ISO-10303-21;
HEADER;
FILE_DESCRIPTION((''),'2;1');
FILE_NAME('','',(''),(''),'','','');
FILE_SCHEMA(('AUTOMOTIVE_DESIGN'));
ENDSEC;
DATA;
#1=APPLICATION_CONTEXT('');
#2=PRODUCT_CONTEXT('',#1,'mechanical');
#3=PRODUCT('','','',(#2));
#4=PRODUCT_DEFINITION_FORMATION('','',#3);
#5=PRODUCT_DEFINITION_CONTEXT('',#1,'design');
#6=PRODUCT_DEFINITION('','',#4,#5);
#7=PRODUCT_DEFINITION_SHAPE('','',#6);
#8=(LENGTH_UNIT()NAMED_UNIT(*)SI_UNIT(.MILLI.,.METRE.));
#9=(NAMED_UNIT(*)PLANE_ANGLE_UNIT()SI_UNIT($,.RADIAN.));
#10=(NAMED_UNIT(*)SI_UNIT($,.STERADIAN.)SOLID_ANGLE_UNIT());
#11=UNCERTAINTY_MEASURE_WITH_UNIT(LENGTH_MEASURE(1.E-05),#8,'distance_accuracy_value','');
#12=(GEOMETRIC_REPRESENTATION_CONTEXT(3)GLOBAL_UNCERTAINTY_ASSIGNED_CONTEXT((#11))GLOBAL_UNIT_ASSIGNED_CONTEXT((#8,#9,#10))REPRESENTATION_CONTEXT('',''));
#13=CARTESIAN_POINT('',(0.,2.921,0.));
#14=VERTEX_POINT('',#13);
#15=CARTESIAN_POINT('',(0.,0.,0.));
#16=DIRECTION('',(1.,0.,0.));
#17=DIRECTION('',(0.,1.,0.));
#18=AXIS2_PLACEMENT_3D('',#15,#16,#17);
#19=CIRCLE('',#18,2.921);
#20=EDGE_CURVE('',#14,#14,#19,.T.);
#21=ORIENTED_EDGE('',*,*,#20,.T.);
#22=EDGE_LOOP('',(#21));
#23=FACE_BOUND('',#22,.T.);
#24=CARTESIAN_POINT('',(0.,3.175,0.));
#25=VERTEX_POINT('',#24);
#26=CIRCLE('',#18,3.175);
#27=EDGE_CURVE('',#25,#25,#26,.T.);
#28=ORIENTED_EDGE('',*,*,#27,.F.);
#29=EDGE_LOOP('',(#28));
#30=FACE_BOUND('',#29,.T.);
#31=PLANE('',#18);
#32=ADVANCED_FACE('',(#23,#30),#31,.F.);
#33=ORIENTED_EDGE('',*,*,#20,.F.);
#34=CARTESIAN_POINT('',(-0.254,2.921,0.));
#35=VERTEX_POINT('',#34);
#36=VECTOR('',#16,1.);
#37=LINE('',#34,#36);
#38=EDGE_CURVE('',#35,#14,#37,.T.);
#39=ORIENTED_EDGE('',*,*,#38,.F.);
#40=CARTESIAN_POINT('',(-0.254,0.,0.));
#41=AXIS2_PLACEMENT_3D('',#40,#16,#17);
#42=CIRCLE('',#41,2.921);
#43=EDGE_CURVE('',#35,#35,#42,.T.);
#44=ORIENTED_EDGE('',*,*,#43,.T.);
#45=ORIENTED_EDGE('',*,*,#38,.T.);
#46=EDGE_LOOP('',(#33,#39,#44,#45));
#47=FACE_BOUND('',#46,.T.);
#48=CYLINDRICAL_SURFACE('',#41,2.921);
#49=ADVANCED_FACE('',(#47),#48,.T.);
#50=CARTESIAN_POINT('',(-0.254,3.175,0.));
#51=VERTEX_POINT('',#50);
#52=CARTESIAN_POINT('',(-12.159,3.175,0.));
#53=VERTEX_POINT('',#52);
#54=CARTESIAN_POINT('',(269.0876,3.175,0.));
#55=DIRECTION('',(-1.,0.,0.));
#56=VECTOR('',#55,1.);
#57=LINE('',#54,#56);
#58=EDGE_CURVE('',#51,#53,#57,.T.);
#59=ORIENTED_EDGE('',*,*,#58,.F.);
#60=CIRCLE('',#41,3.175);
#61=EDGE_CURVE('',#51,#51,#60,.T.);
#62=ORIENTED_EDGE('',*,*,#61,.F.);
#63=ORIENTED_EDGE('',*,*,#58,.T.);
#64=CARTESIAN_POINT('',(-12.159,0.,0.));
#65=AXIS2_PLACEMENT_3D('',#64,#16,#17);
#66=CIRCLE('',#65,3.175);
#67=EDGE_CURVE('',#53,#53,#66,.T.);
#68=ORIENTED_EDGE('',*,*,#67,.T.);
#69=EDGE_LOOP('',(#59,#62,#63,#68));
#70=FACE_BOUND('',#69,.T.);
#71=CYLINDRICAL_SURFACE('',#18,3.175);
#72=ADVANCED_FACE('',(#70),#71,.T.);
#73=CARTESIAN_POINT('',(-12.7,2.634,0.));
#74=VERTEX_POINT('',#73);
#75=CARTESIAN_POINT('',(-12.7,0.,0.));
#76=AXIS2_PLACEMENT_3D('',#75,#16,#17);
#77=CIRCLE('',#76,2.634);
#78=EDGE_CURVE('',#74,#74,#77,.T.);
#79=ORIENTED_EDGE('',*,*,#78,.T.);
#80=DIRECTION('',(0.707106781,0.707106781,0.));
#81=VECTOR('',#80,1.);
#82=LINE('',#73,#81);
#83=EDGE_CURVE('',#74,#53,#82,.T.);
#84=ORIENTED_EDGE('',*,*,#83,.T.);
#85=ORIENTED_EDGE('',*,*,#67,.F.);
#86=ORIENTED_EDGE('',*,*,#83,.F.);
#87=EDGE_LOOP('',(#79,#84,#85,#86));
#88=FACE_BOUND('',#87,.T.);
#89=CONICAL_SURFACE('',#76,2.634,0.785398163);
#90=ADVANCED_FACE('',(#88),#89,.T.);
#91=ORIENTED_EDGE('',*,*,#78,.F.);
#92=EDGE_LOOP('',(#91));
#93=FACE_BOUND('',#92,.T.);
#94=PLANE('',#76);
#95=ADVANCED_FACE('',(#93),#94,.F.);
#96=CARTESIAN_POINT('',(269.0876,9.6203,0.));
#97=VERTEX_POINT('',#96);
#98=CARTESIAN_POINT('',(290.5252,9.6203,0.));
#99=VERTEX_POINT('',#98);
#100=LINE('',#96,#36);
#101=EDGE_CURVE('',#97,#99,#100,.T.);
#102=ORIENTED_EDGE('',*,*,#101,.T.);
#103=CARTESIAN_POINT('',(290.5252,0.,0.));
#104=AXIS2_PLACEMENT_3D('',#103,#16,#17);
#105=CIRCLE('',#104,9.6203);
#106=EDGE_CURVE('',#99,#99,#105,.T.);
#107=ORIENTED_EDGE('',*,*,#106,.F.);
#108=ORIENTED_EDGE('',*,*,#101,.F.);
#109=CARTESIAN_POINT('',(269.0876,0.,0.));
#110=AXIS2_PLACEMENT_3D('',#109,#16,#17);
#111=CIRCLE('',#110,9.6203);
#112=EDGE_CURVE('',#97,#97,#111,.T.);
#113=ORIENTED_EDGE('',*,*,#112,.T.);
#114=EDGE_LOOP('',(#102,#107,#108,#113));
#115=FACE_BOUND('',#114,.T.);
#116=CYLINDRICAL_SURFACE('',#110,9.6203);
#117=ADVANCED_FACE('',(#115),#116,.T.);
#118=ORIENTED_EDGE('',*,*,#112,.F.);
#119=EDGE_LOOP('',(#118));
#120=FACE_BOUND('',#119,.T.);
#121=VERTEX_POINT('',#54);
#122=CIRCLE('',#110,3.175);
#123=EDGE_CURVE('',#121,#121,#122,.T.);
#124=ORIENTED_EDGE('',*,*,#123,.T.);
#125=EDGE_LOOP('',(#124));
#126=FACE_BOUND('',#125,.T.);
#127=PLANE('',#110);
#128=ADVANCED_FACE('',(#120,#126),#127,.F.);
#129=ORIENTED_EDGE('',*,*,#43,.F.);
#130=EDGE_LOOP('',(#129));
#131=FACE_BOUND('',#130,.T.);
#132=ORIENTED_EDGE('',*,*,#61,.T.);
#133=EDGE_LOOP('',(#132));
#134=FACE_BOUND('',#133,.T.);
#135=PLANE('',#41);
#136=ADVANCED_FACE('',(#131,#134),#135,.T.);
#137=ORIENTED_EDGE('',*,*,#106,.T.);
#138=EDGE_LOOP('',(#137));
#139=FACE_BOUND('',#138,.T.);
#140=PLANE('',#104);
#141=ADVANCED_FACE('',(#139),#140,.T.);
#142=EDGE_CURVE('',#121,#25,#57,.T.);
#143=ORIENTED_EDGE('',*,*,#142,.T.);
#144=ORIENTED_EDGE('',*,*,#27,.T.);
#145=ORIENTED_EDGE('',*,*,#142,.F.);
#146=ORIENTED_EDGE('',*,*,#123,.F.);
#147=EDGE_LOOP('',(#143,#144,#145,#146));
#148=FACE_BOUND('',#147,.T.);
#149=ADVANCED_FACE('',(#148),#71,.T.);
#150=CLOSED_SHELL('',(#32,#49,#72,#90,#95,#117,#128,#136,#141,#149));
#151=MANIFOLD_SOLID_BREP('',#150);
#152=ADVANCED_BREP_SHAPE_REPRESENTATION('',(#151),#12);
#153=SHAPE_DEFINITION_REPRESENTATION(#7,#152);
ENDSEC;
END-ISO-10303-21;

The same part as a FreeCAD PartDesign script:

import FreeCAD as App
import Part
import Sketcher
from FreeCAD import Vector
Q = App.Units.Quantity

doc = App.newDocument("Part")
params = doc.addObject("Spreadsheet::Sheet", "Params")
for row, (alias, value) in enumerate([
    ("sketch1_width", "11.438 in"),
    ("sketch1_width2", "0.844 in"),
    ("sketch1_height", "0.125 in"),
    ("revolution_angle", "360 deg"),
    ("sketch2_width", "0.5 in"),
    ("sketch2_height", "0.125 in"),
    ("revolution2_angle", "360 deg"),
    ("sketch3_width", "0.01 in"),
    ("sketch3_height", "0.02 in"),
    ("groove_angle", "360 deg"),
], start=1):
    params.set(f"A{row}", alias)
    params.set(f"B{row}", "=" + value)
    params.setAlias(f"B{row}", alias)

body = doc.addObject("PartDesign::Body", "Body")

# Sketch on XY plane
sketch1 = body.newObject("Sketcher::SketchObject", "Sketch")
sketch1.AttachmentSupport = (doc.getObject("XY_Plane"), [""])
sketch1.MapMode = "FlatFace"
sketch1.addGeometry([
    Part.LineSegment(Vector(0, 0, 0), Vector(290.5252, 0, 0)),  # 0
    Part.LineSegment(Vector(290.5252, 0, 0), Vector(290.5252, 9.6203, 0)),  # 1
    Part.LineSegment(Vector(290.5252, 9.6203, 0), Vector(269.0876, 9.6203, 0)),  # 2
    Part.LineSegment(Vector(269.0876, 9.6203, 0), Vector(269.0876, 3.175, 0)),  # 3
    Part.LineSegment(Vector(269.0876, 3.175, 0), Vector(0, 3.175, 0)),  # 4
    Part.LineSegment(Vector(0, 3.175, 0), Vector(0, 0, 0)),  # 5
], False)
sketch1.addConstraint([
    Sketcher.Constraint("Coincident", 0, 2, 1, 1),
    Sketcher.Constraint("Coincident", 1, 2, 2, 1),
    Sketcher.Constraint("Coincident", 2, 2, 3, 1),
    Sketcher.Constraint("Coincident", 3, 2, 4, 1),
    Sketcher.Constraint("Coincident", 4, 2, 5, 1),
    Sketcher.Constraint("Coincident", 5, 2, 0, 1),
    Sketcher.Constraint("Horizontal", 0),
    Sketcher.Constraint("Vertical", 1),
    Sketcher.Constraint("Horizontal", 2),
    Sketcher.Constraint("Vertical", 3),
    Sketcher.Constraint("Horizontal", 4),
    Sketcher.Constraint("Vertical", 5),
    Sketcher.Constraint("Coincident", 5, 2, -1, 1),
    Sketcher.Constraint("DistanceX", 0, 1, 0, 2, Q("11.438 in")),
    Sketcher.Constraint("DistanceX", 2, 2, 2, 1, Q("0.844 in")),
    Sketcher.Constraint("DistanceY", 5, 2, 5, 1, Q("0.125 in")),
    Sketcher.Constraint("DistanceY", 1, 1, 1, 2, 9.6203),
])
sketch1.setExpression("Constraints[13]", "Params.sketch1_width")
sketch1.setExpression("Constraints[14]", "Params.sketch1_width2")
sketch1.setExpression("Constraints[15]", "Params.sketch1_height")
revolution = body.newObject("PartDesign::Revolution", "Revolution")
revolution.Profile = sketch1
revolution.ReferenceAxis = (sketch1, ["H_Axis"])
revolution.setExpression("Angle", "Params.revolution_angle")

# Sketch on XY plane
sketch2 = body.newObject("Sketcher::SketchObject", "Sketch001")
sketch2.AttachmentSupport = (doc.getObject("XY_Plane"), [""])
sketch2.MapMode = "FlatFace"
sketch2.addGeometry([
    Part.LineSegment(Vector(-12.7, 0, 0), Vector(0, 0, 0)),  # 0
    Part.LineSegment(Vector(0, 0, 0), Vector(0, 3.175, 0)),  # 1
    Part.LineSegment(Vector(0, 3.175, 0), Vector(-12.159, 3.175, 0)),  # 2
    Part.LineSegment(Vector(-12.159, 3.175, 0), Vector(-12.7, 2.634, 0)),  # 3
    Part.LineSegment(Vector(-12.7, 2.634, 0), Vector(-12.7, 0, 0)),  # 4
], False)
sketch2.addConstraint([
    Sketcher.Constraint("Coincident", 0, 2, 1, 1),
    Sketcher.Constraint("Coincident", 1, 2, 2, 1),
    Sketcher.Constraint("Coincident", 2, 2, 3, 1),
    Sketcher.Constraint("Coincident", 3, 2, 4, 1),
    Sketcher.Constraint("Coincident", 4, 2, 0, 1),
    Sketcher.Constraint("Horizontal", 0),
    Sketcher.Constraint("Vertical", 1),
    Sketcher.Constraint("Horizontal", 2),
    Sketcher.Constraint("Vertical", 4),
    Sketcher.Constraint("Coincident", 0, 2, -1, 1),
    Sketcher.Constraint("DistanceX", 0, 1, 0, 2, Q("0.5 in")),
    Sketcher.Constraint("Angle", 3, Q("-135 deg")),
    Sketcher.Constraint("DistanceY", 1, 1, 1, 2, Q("0.125 in")),
    Sketcher.Constraint("DistanceX", 2, 2, 2, 1, Q("0.4787 in")),
])
sketch2.setExpression("Constraints[10]", "Params.sketch2_width")
sketch2.setExpression("Constraints[12]", "Params.sketch2_height")
revolution2 = body.newObject("PartDesign::Revolution", "Revolution001")
revolution2.Profile = sketch2
revolution2.ReferenceAxis = (sketch2, ["H_Axis"])
revolution2.setExpression("Angle", "Params.revolution2_angle")

# Sketch on XY plane
sketch3 = body.newObject("Sketcher::SketchObject", "Sketch002")
sketch3.AttachmentSupport = (doc.getObject("XY_Plane"), [""])
sketch3.MapMode = "FlatFace"
sketch3.addGeometry([
    Part.LineSegment(Vector(0, 3.429, 0), Vector(-0.254, 3.429, 0)),
    Part.LineSegment(Vector(-0.254, 3.429, 0), Vector(-0.254, 2.921, 0)),
    Part.LineSegment(Vector(-0.254, 2.921, 0), Vector(0, 2.921, 0)),
    Part.LineSegment(Vector(0, 2.921, 0), Vector(0, 3.429, 0)),
], False)
sketch3.addConstraint([
    Sketcher.Constraint("Coincident", 0, 2, 1, 1),
    Sketcher.Constraint("Coincident", 1, 2, 2, 1),
    Sketcher.Constraint("Coincident", 2, 2, 3, 1),
    Sketcher.Constraint("Coincident", 3, 2, 0, 1),
    Sketcher.Constraint("Horizontal", 0),
    Sketcher.Constraint("Vertical", 1),
    Sketcher.Constraint("Horizontal", 2),
    Sketcher.Constraint("Vertical", 3),
    Sketcher.Constraint("PointOnObject", 2, 2, -2),
    Sketcher.Constraint("DistanceX", 0, 2, 0, 1, Q("0.01 in")),
    Sketcher.Constraint("DistanceY", 1, 2, 1, 1, Q("0.02 in")),
    Sketcher.Constraint("DistanceY", -1, 1, 0, 2, Q("0.135 in")),
])
sketch3.setExpression("Constraints[9]", "Params.sketch3_width")
sketch3.setExpression("Constraints[10]", "Params.sketch3_height")
groove = body.newObject("PartDesign::Groove", "Groove")
groove.Profile = sketch3
groove.ReferenceAxis = (sketch3, ["H_Axis"])
groove.setExpression("Angle", "Params.groove_angle")

doc.recompute()
